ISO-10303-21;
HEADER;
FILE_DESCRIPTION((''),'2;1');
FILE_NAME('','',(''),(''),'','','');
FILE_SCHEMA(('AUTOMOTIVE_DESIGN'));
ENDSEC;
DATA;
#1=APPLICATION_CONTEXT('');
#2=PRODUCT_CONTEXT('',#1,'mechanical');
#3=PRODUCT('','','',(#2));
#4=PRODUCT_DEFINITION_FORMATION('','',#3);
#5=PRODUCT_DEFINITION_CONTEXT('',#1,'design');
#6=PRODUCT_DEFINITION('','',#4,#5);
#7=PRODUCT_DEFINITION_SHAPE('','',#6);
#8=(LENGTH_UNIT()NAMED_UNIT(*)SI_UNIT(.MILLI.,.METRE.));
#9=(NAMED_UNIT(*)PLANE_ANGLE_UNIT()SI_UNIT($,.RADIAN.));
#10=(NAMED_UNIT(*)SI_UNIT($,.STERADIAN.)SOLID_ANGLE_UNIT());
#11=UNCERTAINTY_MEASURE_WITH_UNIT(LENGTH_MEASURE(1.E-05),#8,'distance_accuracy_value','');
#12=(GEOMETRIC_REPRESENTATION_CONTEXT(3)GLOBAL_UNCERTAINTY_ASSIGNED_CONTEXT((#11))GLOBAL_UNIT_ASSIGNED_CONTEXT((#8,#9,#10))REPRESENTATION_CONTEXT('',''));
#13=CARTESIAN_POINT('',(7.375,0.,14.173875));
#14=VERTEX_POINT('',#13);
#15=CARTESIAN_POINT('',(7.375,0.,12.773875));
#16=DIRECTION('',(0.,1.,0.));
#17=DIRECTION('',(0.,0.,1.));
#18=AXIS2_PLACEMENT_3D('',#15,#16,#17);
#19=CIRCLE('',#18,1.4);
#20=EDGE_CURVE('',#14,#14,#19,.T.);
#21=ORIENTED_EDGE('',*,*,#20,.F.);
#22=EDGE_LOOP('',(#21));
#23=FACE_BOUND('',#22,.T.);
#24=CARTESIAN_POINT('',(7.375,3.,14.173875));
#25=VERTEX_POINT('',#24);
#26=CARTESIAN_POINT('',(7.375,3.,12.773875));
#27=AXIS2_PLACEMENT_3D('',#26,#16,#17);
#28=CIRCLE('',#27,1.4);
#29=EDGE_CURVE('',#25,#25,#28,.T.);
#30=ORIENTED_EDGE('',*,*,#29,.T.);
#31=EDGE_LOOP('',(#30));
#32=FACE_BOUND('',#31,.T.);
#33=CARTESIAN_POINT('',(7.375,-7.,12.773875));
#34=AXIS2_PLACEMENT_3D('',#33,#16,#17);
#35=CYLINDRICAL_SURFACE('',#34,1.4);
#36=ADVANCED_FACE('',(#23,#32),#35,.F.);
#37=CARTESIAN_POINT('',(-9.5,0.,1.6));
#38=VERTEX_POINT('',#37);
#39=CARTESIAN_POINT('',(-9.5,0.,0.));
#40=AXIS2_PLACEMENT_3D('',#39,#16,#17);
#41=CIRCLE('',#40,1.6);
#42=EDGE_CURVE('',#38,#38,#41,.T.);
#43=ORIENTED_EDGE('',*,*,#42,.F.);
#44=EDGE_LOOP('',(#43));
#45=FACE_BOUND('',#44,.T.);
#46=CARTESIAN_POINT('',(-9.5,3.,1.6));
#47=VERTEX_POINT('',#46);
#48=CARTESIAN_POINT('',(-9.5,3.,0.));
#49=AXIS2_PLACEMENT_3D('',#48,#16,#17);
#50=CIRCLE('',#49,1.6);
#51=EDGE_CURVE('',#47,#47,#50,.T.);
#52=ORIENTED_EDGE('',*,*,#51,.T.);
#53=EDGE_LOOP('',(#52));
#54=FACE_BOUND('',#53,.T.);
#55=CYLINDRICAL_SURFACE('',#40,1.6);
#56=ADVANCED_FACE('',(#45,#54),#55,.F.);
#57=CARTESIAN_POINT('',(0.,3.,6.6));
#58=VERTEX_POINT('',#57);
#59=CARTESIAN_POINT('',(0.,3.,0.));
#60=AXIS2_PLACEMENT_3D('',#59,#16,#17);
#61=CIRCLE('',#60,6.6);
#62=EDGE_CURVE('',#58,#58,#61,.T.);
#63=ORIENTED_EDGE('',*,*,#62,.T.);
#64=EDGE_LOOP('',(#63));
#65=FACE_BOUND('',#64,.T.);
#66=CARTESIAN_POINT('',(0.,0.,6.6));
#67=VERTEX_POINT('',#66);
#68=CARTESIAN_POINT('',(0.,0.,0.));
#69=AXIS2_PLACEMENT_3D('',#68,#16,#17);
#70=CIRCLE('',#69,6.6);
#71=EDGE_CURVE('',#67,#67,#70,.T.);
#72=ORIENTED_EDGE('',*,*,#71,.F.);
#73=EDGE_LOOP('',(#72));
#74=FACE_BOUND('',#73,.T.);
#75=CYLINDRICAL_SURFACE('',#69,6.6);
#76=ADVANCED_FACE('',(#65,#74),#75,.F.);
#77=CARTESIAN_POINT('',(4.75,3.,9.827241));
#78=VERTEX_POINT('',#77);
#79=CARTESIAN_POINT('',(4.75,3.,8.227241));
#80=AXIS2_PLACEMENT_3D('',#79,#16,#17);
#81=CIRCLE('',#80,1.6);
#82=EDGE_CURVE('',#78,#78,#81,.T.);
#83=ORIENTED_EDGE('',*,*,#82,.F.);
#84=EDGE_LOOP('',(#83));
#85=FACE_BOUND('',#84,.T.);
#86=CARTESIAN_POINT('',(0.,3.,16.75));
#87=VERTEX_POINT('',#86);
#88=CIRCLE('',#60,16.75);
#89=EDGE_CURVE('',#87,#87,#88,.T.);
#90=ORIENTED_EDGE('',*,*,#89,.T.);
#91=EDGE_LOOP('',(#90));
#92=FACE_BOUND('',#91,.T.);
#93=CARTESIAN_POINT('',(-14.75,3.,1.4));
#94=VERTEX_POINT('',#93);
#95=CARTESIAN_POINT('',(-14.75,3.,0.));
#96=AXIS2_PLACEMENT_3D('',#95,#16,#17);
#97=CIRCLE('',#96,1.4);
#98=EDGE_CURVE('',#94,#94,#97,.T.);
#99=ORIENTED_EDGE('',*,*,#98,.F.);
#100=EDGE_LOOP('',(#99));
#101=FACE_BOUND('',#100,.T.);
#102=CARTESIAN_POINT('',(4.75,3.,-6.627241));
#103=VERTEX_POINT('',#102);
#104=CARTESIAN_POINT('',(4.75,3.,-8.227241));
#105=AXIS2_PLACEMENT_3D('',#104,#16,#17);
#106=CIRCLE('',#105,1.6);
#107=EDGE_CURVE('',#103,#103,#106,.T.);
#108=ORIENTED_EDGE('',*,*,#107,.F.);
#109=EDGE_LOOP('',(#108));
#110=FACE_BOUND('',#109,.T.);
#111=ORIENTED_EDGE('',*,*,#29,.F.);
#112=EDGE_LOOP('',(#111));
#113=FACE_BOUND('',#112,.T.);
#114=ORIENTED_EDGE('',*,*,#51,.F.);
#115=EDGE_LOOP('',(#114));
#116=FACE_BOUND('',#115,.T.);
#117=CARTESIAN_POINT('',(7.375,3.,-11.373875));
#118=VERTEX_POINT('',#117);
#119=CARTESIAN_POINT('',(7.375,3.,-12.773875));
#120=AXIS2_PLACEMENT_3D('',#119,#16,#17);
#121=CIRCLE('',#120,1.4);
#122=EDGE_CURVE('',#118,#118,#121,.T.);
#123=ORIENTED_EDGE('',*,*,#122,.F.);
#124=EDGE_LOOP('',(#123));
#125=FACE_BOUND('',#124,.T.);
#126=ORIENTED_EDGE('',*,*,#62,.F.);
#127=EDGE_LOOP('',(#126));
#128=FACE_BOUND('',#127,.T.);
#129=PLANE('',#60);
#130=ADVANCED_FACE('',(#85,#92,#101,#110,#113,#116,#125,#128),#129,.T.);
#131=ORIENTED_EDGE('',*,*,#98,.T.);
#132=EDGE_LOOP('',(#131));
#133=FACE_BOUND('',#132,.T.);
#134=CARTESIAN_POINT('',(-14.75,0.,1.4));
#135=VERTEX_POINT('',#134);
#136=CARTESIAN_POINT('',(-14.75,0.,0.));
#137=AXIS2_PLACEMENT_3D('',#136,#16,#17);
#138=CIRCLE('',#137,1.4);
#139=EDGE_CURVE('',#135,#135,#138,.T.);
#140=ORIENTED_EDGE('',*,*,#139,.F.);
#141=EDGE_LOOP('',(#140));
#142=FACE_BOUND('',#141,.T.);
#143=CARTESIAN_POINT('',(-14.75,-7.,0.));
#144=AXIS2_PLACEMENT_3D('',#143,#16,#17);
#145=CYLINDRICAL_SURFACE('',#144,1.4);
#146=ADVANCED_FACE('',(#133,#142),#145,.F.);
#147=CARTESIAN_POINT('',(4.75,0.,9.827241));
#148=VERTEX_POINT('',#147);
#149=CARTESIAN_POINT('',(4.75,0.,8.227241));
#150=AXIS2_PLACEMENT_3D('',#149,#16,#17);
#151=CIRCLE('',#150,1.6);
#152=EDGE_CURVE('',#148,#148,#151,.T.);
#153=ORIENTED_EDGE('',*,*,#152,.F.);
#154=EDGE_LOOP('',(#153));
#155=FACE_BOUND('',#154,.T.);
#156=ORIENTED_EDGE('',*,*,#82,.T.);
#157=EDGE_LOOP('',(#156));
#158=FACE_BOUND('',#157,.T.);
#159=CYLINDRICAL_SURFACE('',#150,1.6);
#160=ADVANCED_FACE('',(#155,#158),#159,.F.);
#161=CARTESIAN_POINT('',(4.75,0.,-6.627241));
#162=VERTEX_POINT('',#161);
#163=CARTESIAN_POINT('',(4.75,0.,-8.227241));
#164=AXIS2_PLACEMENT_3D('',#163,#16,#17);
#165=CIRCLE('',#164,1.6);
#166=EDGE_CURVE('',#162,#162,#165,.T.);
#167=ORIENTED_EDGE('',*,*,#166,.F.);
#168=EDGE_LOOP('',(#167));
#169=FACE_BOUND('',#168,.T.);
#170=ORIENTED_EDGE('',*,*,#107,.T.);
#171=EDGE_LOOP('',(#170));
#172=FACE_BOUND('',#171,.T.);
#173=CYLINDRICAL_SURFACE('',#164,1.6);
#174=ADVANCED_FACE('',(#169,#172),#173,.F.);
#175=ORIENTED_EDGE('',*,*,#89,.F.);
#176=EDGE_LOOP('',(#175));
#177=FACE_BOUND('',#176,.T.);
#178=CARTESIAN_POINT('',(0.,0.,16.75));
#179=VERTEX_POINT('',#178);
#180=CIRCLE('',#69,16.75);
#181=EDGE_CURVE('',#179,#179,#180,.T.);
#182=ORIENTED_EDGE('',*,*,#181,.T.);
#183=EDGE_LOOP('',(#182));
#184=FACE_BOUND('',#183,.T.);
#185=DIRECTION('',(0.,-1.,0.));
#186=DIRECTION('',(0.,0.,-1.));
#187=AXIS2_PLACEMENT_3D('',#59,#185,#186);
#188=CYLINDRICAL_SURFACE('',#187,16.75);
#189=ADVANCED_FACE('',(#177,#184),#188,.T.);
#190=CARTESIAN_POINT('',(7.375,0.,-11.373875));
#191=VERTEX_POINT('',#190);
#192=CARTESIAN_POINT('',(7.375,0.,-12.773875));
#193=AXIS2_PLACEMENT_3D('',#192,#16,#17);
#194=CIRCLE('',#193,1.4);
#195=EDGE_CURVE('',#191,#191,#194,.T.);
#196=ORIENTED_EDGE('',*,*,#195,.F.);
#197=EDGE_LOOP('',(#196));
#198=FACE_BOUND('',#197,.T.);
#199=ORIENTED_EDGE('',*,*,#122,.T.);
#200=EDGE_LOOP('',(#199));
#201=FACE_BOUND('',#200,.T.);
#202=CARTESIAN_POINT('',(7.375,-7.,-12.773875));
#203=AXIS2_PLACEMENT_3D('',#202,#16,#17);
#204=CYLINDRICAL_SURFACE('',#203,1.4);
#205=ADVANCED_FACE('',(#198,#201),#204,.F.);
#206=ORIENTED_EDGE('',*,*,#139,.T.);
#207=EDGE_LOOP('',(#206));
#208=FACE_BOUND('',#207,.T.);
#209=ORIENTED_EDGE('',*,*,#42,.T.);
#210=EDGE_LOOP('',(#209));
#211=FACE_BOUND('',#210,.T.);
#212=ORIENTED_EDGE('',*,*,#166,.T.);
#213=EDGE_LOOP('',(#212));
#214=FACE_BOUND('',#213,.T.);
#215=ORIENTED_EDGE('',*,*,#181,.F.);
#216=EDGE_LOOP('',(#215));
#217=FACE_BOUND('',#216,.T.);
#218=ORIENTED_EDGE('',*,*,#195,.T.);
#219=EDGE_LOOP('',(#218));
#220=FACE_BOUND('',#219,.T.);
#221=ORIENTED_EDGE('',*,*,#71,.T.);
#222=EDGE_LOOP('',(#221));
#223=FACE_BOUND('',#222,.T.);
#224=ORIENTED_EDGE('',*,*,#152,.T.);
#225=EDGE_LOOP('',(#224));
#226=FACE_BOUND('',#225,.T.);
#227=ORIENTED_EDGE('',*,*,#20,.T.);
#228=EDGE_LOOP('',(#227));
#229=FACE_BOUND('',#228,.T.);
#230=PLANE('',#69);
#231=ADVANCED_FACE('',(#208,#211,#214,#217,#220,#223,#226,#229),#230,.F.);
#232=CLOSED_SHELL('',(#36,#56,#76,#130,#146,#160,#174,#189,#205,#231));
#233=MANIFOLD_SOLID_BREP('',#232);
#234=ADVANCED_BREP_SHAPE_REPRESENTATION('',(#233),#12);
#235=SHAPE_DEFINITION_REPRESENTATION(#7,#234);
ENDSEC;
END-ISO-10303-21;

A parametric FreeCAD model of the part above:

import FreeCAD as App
import Part
import Sketcher
from FreeCAD import Vector

doc = App.newDocument("Part")
body = doc.addObject("PartDesign::Body", "Body")

sketch1 = body.newObject("Sketcher::SketchObject", "Sketch")
sketch1.AttachmentSupport = (doc.getObject("XZ_Plane"), [""])
sketch1.MapMode = "FlatFace"
sketch1.addGeometry(Part.Circle(Vector(0, 0, 0), Vector(0, 0, 1), 17), False)
sketch1.addConstraint(Sketcher.Constraint("Coincident", 0, 3, -1, 1))
sketch1.addConstraint(Sketcher.Constraint("Diameter", 0, 33.5))
pad1 = body.newObject("PartDesign::Pad", "Pad")
pad1.Profile = sketch1
pad1.Length = 3
pad1.Reversed = True

sketch2 = body.newObject("Sketcher::SketchObject", "Sketch001")
sketch2.AttachmentSupport = (doc.getObject("XZ_Plane"), [""])
sketch2.MapMode = "FlatFace"
sketch2.AttachmentOffset = App.Placement(Vector(0, 0, -3), App.Rotation())
sketch2.addGeometry(Part.Circle(Vector(4.8, -8.2, 0), Vector(0, 0, 1), 1.6), False)
sketch2.addGeometry(Part.Circle(Vector(4.8, 8.2, 0), Vector(0, 0, 1), 1.6), False)
sketch2.addGeometry(Part.Circle(Vector(-9.5, 0, 0), Vector(0, 0, 1), 1.6), False)
sketch2.addConstraint(Sketcher.Constraint("Equal", 0, 1))
sketch2.addConstraint(Sketcher.Constraint("Equal", 1, 2))
sketch2.addConstraint(Sketcher.Constraint("Symmetric", 0, 3, 1, 3, -1))
sketch2.addConstraint(Sketcher.Constraint("PointOnObject", 2, 3, -1))
sketch2.addConstraint(Sketcher.Constraint("Diameter", 0, 3.2))
sketch2.addConstraint(Sketcher.Constraint("DistanceX", 2, 3, -1, 1, 9.5))
sketch2.addConstraint(Sketcher.Constraint("DistanceX", -1, 1, 0, 3, 4.75))
sketch2.addConstraint(Sketcher.Constraint("DistanceY", 0, 3, -1, 1, 8.227241))
pocket1 = body.newObject("PartDesign::Pocket", "Pocket")
pocket1.Profile = sketch2
pocket1.Length = 3
pocket1.Reversed = True

sketch3 = body.newObject("Sketcher::SketchObject", "Sketch002")
sketch3.AttachmentSupport = (doc.getObject("XZ_Plane"), [""])
sketch3.MapMode = "FlatFace"
sketch3.AttachmentOffset = App.Placement(Vector(0, 0, -3), App.Rotation())
sketch3.addGeometry(Part.Circle(Vector(0, 0, 0), Vector(0, 0, 1), 7), False)
sketch3.addConstraint(Sketcher.Constraint("Coincident", 0, 3, -1, 1))
sketch3.addConstraint(Sketcher.Constraint("Diameter", 0, 13.2))
pocket2 = body.newObject("PartDesign::Pocket", "Pocket001")
pocket2.Profile = sketch3
pocket2.Length = 3
pocket2.Reversed = True

sketch4 = body.newObject("Sketcher::SketchObject", "Sketch003")
sketch4.AttachmentSupport = (doc.getObject("XZ_Plane"), [""])
sketch4.MapMode = "FlatFace"
sketch4.AttachmentOffset = App.Placement(Vector(0, 0, -3), App.Rotation())
sketch4.addGeometry(Part.Circle(Vector(-14.8, 0, 0), Vector(0, 0, 1), 1.4), False)
sketch4.addGeometry(Part.Circle(Vector(7.4, -12.8, 0), Vector(0, 0, 1), 1.4), False)
sketch4.addGeometry(Part.Circle(Vector(7.4, 12.8, 0), Vector(0, 0, 1), 1.4), False)
sketch4.addConstraint(Sketcher.Constraint("Equal", 0, 1))
sketch4.addConstraint(Sketcher.Constraint("Equal", 1, 2))
sketch4.addConstraint(Sketcher.Constraint("Symmetric", 1, 3, 2, 3, -1))
sketch4.addConstraint(Sketcher.Constraint("PointOnObject", 0, 3, -1))
sketch4.addConstraint(Sketcher.Constraint("Diameter", 0, 2.8))
sketch4.addConstraint(Sketcher.Constraint("DistanceX", 0, 3, -1, 1, 14.75))
sketch4.addConstraint(Sketcher.Constraint("DistanceX", -1, 1, 1, 3, 7.375))
sketch4.addConstraint(Sketcher.Constraint("DistanceY", 1, 3, 2, 3, 25.547749))
pocket3 = body.newObject("PartDesign::Pocket", "Pocket002")
pocket3.Profile = sketch4
pocket3.Length = 10
pocket3.Reversed = True

doc.recompute()
